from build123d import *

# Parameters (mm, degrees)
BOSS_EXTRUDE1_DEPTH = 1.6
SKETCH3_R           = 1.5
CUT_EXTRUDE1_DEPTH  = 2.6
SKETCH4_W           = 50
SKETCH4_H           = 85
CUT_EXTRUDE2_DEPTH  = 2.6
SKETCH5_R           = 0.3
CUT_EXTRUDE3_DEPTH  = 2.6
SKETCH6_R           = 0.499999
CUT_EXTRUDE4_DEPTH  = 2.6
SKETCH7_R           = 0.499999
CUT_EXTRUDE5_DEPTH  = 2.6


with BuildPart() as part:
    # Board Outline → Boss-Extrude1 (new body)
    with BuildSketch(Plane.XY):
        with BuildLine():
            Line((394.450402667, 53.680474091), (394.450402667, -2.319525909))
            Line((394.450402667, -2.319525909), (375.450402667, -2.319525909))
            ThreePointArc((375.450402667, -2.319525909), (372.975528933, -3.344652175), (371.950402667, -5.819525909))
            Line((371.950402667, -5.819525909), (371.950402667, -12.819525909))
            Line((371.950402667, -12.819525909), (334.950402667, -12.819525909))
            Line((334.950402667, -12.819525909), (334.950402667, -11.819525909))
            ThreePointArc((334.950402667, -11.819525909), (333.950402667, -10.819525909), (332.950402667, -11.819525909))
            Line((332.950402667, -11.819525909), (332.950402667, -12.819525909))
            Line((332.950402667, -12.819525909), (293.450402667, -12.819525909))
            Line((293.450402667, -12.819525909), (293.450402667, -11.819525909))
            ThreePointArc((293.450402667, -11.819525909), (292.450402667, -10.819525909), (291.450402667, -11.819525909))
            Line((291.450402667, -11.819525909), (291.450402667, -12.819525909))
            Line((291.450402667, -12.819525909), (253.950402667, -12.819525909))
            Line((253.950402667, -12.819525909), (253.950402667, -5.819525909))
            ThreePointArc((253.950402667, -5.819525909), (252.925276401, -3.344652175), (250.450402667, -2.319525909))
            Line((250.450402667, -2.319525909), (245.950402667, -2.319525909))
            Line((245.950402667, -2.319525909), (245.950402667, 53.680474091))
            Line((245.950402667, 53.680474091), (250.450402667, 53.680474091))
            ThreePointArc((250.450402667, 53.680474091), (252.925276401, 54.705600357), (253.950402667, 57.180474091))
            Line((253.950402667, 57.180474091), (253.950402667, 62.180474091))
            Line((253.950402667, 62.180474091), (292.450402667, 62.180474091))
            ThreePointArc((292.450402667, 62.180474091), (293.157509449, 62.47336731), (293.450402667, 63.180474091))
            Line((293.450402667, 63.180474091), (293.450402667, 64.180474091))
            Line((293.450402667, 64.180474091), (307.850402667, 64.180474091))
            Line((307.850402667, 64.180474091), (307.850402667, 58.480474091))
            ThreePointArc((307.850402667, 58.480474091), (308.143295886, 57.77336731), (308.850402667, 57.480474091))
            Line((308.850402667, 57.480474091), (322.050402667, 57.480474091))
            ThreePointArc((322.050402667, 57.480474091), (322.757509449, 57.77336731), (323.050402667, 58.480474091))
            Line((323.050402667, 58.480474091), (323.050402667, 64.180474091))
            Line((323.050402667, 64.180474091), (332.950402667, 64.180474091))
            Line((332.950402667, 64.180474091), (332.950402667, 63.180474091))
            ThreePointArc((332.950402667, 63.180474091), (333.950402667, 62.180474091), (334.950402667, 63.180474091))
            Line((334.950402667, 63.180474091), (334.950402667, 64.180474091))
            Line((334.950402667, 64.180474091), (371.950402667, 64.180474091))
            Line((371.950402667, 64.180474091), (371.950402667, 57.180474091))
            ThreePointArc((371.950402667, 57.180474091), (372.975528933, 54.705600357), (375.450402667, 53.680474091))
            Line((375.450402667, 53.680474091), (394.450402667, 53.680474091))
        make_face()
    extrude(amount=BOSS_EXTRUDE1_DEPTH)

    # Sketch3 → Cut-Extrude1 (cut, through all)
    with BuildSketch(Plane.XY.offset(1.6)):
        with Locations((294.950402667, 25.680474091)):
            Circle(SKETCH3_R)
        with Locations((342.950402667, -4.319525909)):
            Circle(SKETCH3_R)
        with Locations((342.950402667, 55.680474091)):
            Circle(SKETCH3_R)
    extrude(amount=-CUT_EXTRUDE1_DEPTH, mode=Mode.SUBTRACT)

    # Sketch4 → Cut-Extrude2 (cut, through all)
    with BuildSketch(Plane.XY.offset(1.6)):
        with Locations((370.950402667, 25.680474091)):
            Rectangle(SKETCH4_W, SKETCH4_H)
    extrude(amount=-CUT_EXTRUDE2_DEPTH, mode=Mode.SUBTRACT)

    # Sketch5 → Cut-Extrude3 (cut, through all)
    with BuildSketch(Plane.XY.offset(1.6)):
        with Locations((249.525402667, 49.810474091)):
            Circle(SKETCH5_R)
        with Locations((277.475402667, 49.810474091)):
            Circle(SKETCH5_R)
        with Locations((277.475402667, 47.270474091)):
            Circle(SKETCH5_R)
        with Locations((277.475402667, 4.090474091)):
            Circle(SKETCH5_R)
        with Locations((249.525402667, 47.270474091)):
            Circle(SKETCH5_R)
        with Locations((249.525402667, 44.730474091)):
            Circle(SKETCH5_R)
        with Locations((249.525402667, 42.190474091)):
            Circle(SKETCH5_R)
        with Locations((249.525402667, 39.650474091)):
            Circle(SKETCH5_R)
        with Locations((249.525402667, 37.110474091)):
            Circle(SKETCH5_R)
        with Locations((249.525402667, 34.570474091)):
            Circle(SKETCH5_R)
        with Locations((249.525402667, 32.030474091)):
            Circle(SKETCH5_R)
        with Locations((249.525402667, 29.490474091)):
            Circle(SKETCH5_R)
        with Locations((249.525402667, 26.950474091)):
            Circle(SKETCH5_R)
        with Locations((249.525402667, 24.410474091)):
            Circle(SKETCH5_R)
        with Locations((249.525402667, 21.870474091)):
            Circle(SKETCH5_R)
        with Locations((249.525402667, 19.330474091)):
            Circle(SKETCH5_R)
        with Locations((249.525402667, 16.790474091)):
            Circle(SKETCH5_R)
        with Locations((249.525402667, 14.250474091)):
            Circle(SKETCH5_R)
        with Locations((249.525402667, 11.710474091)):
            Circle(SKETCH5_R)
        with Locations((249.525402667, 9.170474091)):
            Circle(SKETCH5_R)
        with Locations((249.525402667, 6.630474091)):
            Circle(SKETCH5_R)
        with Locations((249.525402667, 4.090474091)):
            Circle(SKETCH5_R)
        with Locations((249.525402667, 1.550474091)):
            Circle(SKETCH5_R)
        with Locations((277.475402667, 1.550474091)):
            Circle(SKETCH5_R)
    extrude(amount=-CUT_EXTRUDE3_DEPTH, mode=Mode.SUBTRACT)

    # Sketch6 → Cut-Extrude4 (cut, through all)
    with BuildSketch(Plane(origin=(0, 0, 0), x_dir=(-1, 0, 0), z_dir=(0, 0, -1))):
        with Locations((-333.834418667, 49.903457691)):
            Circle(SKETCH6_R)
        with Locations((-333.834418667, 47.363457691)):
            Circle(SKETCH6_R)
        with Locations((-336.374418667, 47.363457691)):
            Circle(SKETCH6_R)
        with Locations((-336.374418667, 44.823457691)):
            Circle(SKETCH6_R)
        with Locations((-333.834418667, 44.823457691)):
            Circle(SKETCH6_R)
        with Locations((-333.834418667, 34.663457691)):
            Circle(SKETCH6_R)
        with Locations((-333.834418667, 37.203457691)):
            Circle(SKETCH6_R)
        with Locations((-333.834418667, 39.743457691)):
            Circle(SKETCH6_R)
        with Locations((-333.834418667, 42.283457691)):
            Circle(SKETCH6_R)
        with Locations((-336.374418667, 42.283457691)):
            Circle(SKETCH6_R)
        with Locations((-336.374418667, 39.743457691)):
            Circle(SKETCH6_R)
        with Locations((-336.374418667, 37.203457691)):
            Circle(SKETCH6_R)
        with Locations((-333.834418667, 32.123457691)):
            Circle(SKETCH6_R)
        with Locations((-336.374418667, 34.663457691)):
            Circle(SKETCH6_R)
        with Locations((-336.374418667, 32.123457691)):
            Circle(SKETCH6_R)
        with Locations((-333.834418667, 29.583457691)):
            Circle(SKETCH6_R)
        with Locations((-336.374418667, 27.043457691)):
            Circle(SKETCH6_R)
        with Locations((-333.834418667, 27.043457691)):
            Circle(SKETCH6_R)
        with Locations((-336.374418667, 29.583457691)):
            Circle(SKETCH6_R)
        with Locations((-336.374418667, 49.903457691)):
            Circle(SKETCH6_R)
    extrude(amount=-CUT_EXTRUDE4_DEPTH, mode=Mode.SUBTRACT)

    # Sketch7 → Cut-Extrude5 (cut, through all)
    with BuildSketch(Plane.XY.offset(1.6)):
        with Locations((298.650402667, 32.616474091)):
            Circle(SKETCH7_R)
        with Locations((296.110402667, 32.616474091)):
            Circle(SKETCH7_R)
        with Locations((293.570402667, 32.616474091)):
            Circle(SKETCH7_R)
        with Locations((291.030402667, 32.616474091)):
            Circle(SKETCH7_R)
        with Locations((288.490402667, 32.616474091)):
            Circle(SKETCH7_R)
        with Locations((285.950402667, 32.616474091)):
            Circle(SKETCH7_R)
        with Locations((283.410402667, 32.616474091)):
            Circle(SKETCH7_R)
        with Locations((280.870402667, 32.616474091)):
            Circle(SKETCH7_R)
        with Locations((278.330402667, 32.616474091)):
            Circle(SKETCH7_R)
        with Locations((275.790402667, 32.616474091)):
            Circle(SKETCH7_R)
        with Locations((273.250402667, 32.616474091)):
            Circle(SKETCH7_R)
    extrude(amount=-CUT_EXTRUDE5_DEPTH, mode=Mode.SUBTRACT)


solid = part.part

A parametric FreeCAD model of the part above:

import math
import FreeCAD as App
import Part
import Sketcher
from FreeCAD import Vector


def add_polygon(sketch, points):
    """Adds a closed chain of lines whose ends are joined by coincident constraints."""
    first, n = sketch.GeometryCount, len(points)
    for a, b in zip(points, points[1:] + points[:1]):
        sketch.addGeometry(Part.LineSegment(App.Vector(*a, 0), App.Vector(*b, 0)), False)
    for i in range(n):
        sketch.addConstraint(Sketcher.Constraint("Coincident", first + i, 2, first + (i + 1) % n, 1))

doc = App.newDocument("Part")
body = doc.addObject("PartDesign::Body", "Body")

sketch1 = body.newObject("Sketcher::SketchObject", "Sketch")
sketch1.AttachmentSupport = (doc.getObject("XY_Plane"), [""])
sketch1.MapMode = "FlatFace"
sketch1.addGeometry(Part.LineSegment(Vector(394.5, -2.3, 0), Vector(394.5, 53.7, 0)), False)
sketch1.addGeometry(Part.LineSegment(Vector(394.5, 53.7, 0), Vector(375.5, 53.7, 0)), False)
sketch1.addGeometry(Part.ArcOfCircle(Part.Circle(Vector(375.5, 57.2, 0), Vector(0, 0, 1), 3.5), math.radians(-180), math.radians(-90)), False)
sketch1.addGeometry(Part.LineSegment(Vector(372, 57.2, 0), Vector(372, 64.2, 0)), False)
sketch1.addGeometry(Part.LineSegment(Vector(372, 64.2, 0), Vector(335, 64.2, 0)), False)
sketch1.addGeometry(Part.LineSegment(Vector(335, 64.2, 0), Vector(335, 63.2, 0)), False)
sketch1.addGeometry(Part.ArcOfCircle(Part.Circle(Vector(334, 63.2, 0), Vector(0, 0, 1), 1), math.radians(180), math.radians(360)), False)
sketch1.addGeometry(Part.LineSegment(Vector(333, 63.2, 0), Vector(333, 64.2, 0)), False)
sketch1.addGeometry(Part.LineSegment(Vector(333, 64.2, 0), Vector(323.1, 64.2, 0)), False)
sketch1.addGeometry(Part.LineSegment(Vector(323.1, 64.2, 0), Vector(323.1, 58.5, 0)), False)
sketch1.addGeometry(Part.ArcOfCircle(Part.Circle(Vector(322.1, 58.5, 0), Vector(0, 0, 1), 1), math.radians(-90), math.radians(0)), False)
sketch1.addGeometry(Part.LineSegment(Vector(322.1, 57.5, 0), Vector(308.9, 57.5, 0)), False)
sketch1.addGeometry(Part.ArcOfCircle(Part.Circle(Vector(308.9, 58.5, 0), Vector(0, 0, 1), 1), math.radians(-180), math.radians(-90)), False)
sketch1.addGeometry(Part.LineSegment(Vector(307.9, 58.5, 0), Vector(307.9, 64.2, 0)), False)
sketch1.addGeometry(Part.LineSegment(Vector(307.9, 64.2, 0), Vector(293.5, 64.2, 0)), False)
sketch1.addGeometry(Part.LineSegment(Vector(293.5, 64.2, 0), Vector(293.5, 63.2, 0)), False)
sketch1.addGeometry(Part.ArcOfCircle(Part.Circle(Vector(292.5, 63.2, 0), Vector(0, 0, 1), 1), math.radians(-90), math.radians(0)), False)
sketch1.addGeometry(Part.LineSegment(Vector(292.5, 62.2, 0), Vector(254, 62.2, 0)), False)
sketch1.addGeometry(Part.LineSegment(Vector(254, 62.2, 0), Vector(254, 57.2, 0)), False)
sketch1.addGeometry(Part.ArcOfCircle(Part.Circle(Vector(250.5, 57.2, 0), Vector(0, 0, 1), 3.5), math.radians(-90), math.radians(0)), False)
sketch1.addGeometry(Part.LineSegment(Vector(250.5, 53.7, 0), Vector(246, 53.7, 0)), False)
sketch1.addGeometry(Part.LineSegment(Vector(246, 53.7, 0), Vector(246, -2.3, 0)), False)
sketch1.addGeometry(Part.LineSegment(Vector(246, -2.3, 0), Vector(250.5, -2.3, 0)), False)
sketch1.addGeometry(Part.ArcOfCircle(Part.Circle(Vector(250.5, -5.8, 0), Vector(0, 0, 1), 3.5), math.radians(0), math.radians(90)), False)
sketch1.addGeometry(Part.LineSegment(Vector(254, -5.8, 0), Vector(254, -12.8, 0)), False)
sketch1.addGeometry(Part.LineSegment(Vector(254, -12.8, 0), Vector(291.5, -12.8, 0)), False)
sketch1.addGeometry(Part.LineSegment(Vector(291.5, -12.8, 0), Vector(291.5, -11.8, 0)), False)
sketch1.addGeometry(Part.ArcOfCircle(Part.Circle(Vector(292.5, -11.8, 0), Vector(0, 0, 1), 1), math.radians(0), math.radians(180)), False)
sketch1.addGeometry(Part.LineSegment(Vector(293.5, -11.8, 0), Vector(293.5, -12.8, 0)), False)
sketch1.addGeometry(Part.LineSegment(Vector(293.5, -12.8, 0), Vector(333, -12.8, 0)), False)
sketch1.addGeometry(Part.LineSegment(Vector(333, -12.8, 0), Vector(333, -11.8, 0)), False)
sketch1.addGeometry(Part.ArcOfCircle(Part.Circle(Vector(334, -11.8, 0), Vector(0, 0, 1), 1), math.radians(0), math.radians(180)), False)
sketch1.addGeometry(Part.LineSegment(Vector(335, -11.8, 0), Vector(335, -12.8, 0)), False)
sketch1.addGeometry(Part.LineSegment(Vector(335, -12.8, 0), Vector(372, -12.8, 0)), False)
sketch1.addGeometry(Part.LineSegment(Vector(372, -12.8, 0), Vector(372, -5.8, 0)), False)
sketch1.addGeometry(Part.ArcOfCircle(Part.Circle(Vector(375.5, -5.8, 0), Vector(0, 0, 1), 3.5), math.radians(90), math.radians(180)), False)
sketch1.addGeometry(Part.LineSegment(Vector(375.5, -2.3, 0), Vector(394.5, -2.3, 0)), False)
sketch1.addConstraint(Sketcher.Constraint("Coincident", 0, 2, 1, 1))
sketch1.addConstraint(Sketcher.Constraint("Tangent", 1, 2, 2, 2))
sketch1.addConstraint(Sketcher.Constraint("Tangent", 2, 1, 3, 1))
sketch1.addConstraint(Sketcher.Constraint("Coincident", 3, 2, 4, 1))
sketch1.addConstraint(Sketcher.Constraint("Coincident", 4, 2, 5, 1))
sketch1.addConstraint(Sketcher.Constraint("Tangent", 5, 2, 6, 2))
sketch1.addConstraint(Sketcher.Constraint("Tangent", 6, 1, 7, 1))
sketch1.addConstraint(Sketcher.Constraint("Coincident", 7, 2, 8, 1))
sketch1.addConstraint(Sketcher.Constraint("Coincident", 8, 2, 9, 1))
sketch1.addConstraint(Sketcher.Constraint("Tangent", 9, 2, 10, 2))
sketch1.addConstraint(Sketcher.Constraint("Tangent", 10, 1, 11, 1))
sketch1.addConstraint(Sketcher.Constraint("Tangent", 11, 2, 12, 2))
sketch1.addConstraint(Sketcher.Constraint("Tangent", 12, 1, 13, 1))
sketch1.addConstraint(Sketcher.Constraint("Coincident", 13, 2, 14, 1))
sketch1.addConstraint(Sketcher.Constraint("Coincident", 14, 2, 15, 1))
sketch1.addConstraint(Sketcher.Constraint("Tangent", 15, 2, 16, 2))
sketch1.addConstraint(Sketcher.Constraint("Tangent", 16, 1, 17, 1))
sketch1.addConstraint(Sketcher.Constraint("Coincident", 17, 2, 18, 1))
sketch1.addConstraint(Sketcher.Constraint("Tangent", 18, 2, 19, 2))
sketch1.addConstraint(Sketcher.Constraint("Tangent", 19, 1, 20, 1))
sketch1.addConstraint(Sketcher.Constraint("Coincident", 20, 2, 21, 1))
sketch1.addConstraint(Sketcher.Constraint("Coincident", 21, 2, 22, 1))
sketch1.addConstraint(Sketcher.Constraint("Tangent", 22, 2, 23, 2))
sketch1.addConstraint(Sketcher.Constraint("Tangent", 23, 1, 24, 1))
sketch1.addConstraint(Sketcher.Constraint("Coincident", 24, 2, 25, 1))
sketch1.addConstraint(Sketcher.Constraint("Coincident", 25, 2, 26, 1))
sketch1.addConstraint(Sketcher.Constraint("Tangent", 26, 2, 27, 2))
sketch1.addConstraint(Sketcher.Constraint("Tangent", 27, 1, 28, 1))
sketch1.addConstraint(Sketcher.Constraint("Coincident", 28, 2, 29, 1))
sketch1.addConstraint(Sketcher.Constraint("Coincident", 29, 2, 30, 1))
sketch1.addConstraint(Sketcher.Constraint("Tangent", 30, 2, 31, 2))
sketch1.addConstraint(Sketcher.Constraint("Tangent", 31, 1, 32, 1))
sketch1.addConstraint(Sketcher.Constraint("Coincident", 32, 2, 33, 1))
sketch1.addConstraint(Sketcher.Constraint("Coincident", 33, 2, 34, 1))
sketch1.addConstraint(Sketcher.Constraint("Tangent", 34, 2, 35, 2))
sketch1.addConstraint(Sketcher.Constraint("Tangent", 35, 1, 36, 1))
sketch1.addConstraint(Sketcher.Constraint("Coincident", 36, 2, 0, 1))
sketch1.addConstraint(Sketcher.Constraint("Vertical", 0))
sketch1.addConstraint(Sketcher.Constraint("Horizontal", 1))
sketch1.addConstraint(Sketcher.Constraint("Vertical", 3))
sketch1.addConstraint(Sketcher.Constraint("Horizontal", 4))
sketch1.addConstraint(Sketcher.Constraint("Vertical", 5))
sketch1.addConstraint(Sketcher.Constraint("Vertical", 7))
sketch1.addConstraint(Sketcher.Constraint("Horizontal", 8))
sketch1.addConstraint(Sketcher.Constraint("Vertical", 9))
sketch1.addConstraint(Sketcher.Constraint("Horizontal", 11))
sketch1.addConstraint(Sketcher.Constraint("Vertical", 13))
sketch1.addConstraint(Sketcher.Constraint("Horizontal", 14))
sketch1.addConstraint(Sketcher.Constraint("Vertical", 15))
sketch1.addConstraint(Sketcher.Constraint("Horizontal", 17))
sketch1.addConstraint(Sketcher.Constraint("Vertical", 18))
sketch1.addConstraint(Sketcher.Constraint("Horizontal", 20))
sketch1.addConstraint(Sketcher.Constraint("Vertical", 21))
sketch1.addConstraint(Sketcher.Constraint("Horizontal", 22))
sketch1.addConstraint(Sketcher.Constraint("Vertical", 24))
sketch1.addConstraint(Sketcher.Constraint("Horizontal", 25))
sketch1.addConstraint(Sketcher.Constraint("Vertical", 26))
sketch1.addConstraint(Sketcher.Constraint("Vertical", 28))
sketch1.addConstraint(Sketcher.Constraint("Horizontal", 29))
sketch1.addConstraint(Sketcher.Constraint("Vertical", 30))
sketch1.addConstraint(Sketcher.Constraint("Vertical", 32))
sketch1.addConstraint(Sketcher.Constraint("Horizontal", 33))
sketch1.addConstraint(Sketcher.Constraint("Vertical", 34))
sketch1.addConstraint(Sketcher.Constraint("Horizontal", 36))
sketch1.addConstraint(Sketcher.Constraint("Equal", 6, 10))
sketch1.addConstraint(Sketcher.Constraint("Equal", 10, 12))
sketch1.addConstraint(Sketcher.Constraint("Equal", 12, 16))
sketch1.addConstraint(Sketcher.Constraint("Equal", 2, 19))
sketch1.addConstraint(Sketcher.Constraint("Equal", 19, 23))
sketch1.addConstraint(Sketcher.Constraint("Equal", 16, 27))
sketch1.addConstraint(Sketcher.Constraint("Equal", 27, 31))
sketch1.addConstraint(Sketcher.Constraint("Equal", 23, 35))
sketch1.addConstraint(Sketcher.Constraint("Horizontal", 6, 3, 16, 3))
sketch1.addConstraint(Sketcher.Constraint("Horizontal", 2, 3, 19, 3))
sketch1.addConstraint(Sketcher.Constraint("Horizontal", 27, 3, 31, 3))
sketch1.addConstraint(Sketcher.Constraint("Horizontal", 23, 3, 35, 3))
sketch1.addConstraint(Sketcher.Constraint("Horizontal", 4, 2, 7, 2))
sketch1.addConstraint(Sketcher.Constraint("Horizontal", 8, 2, 13, 2))
sketch1.addConstraint(Sketcher.Constraint("Horizontal", 25, 2, 28, 2))
sketch1.addConstraint(Sketcher.Constraint("Horizontal", 29, 2, 32, 2))
sketch1.addConstraint(Sketcher.Constraint("Vertical", 19, 3, 23, 3))
sketch1.addConstraint(Sketcher.Constraint("Vertical", 16, 3, 27, 3))
sketch1.addConstraint(Sketcher.Constraint("Vertical", 6, 3, 31, 3))
sketch1.addConstraint(Sketcher.Constraint("Vertical", 2, 3, 35, 3))
sketch1.addConstraint(Sketcher.Constraint("Equal", 3, 24))
sketch1.addConstraint(Sketcher.Constraint("Equal", 15, 26))
sketch1.addConstraint(Sketcher.Constraint("Radius", 6, 1.0))
sketch1.addConstraint(Sketcher.Constraint("Radius", 2, 3.5))
sketch1.addConstraint(Sketcher.Constraint("DistanceX", 1, 2, 1, 1, 19.0))
sketch1.addConstraint(Sketcher.Constraint("DistanceX", 4, 2, 4, 1, 37.0))
sketch1.addConstraint(Sketcher.Constraint("DistanceY", 0, 1, 0, 2, 56.0))
sketch1.addConstraint(Sketcher.Constraint("DistanceY", 3, 1, 3, 2, 7.0))
sketch1.addConstraint(Sketcher.Constraint("DistanceY", 5, 2, 5, 1, 1.0))
sketch1.addConstraint(Sketcher.Constraint("DistanceX", 8, 2, 8, 1, 9.9))
sketch1.addConstraint(Sketcher.Constraint("DistanceX", 11, 2, 11, 1, 13.2))
sketch1.addConstraint(Sketcher.Constraint("DistanceX", 14, 2, 14, 1, 14.4))
sketch1.addConstraint(Sketcher.Constraint("DistanceX", 17, 2, 17, 1, 38.5))
sketch1.addConstraint(Sketcher.Constraint("DistanceX", 20, 2, 20, 1, 4.5))
sketch1.addConstraint(Sketcher.Constraint("DistanceY", 9, 2, 9, 1, 5.7))
sketch1.addConstraint(Sketcher.Constraint("DistanceX", -1, 1, 2, 3, 375.450403))
sketch1.addConstraint(Sketcher.Constraint("DistanceY", -1, 1, 2, 3, 57.180474))
pad1 = body.newObject("PartDesign::Pad", "Pad")
pad1.Profile = sketch1
pad1.Length = 1.6

sketch2 = body.newObject("Sketcher::SketchObject", "Sketch001")
sketch2.AttachmentSupport = (doc.getObject("XY_Plane"), [""])
sketch2.MapMode = "FlatFace"
sketch2.AttachmentOffset = App.Placement(Vector(0, 0, 1.6), App.Rotation())
sketch2.addGeometry(Part.Circle(Vector(295, 25.7, 0), Vector(0, 0, 1), 1.5), False)
sketch2.addGeometry(Part.Circle(Vector(343, -4.3, 0), Vector(0, 0, 1), 1.5), False)
sketch2.addGeometry(Part.Circle(Vector(343, 55.7, 0), Vector(0, 0, 1), 1.5), False)
sketch2.addConstraint(Sketcher.Constraint("Equal", 0, 1))
sketch2.addConstraint(Sketcher.Constraint("Equal", 1, 2))
sketch2.addConstraint(Sketcher.Constraint("Vertical", 1, 3, 2, 3))
sketch2.addConstraint(Sketcher.Constraint("Diameter", 0, 3.0))
sketch2.addConstraint(Sketcher.Constraint("DistanceX", 0, 3, 1, 3, 48.0))
sketch2.addConstraint(Sketcher.Constraint("DistanceY", 1, 3, 0, 3, 30.0))
sketch2.addConstraint(Sketcher.Constraint("DistanceY", 0, 3, 2, 3, 30.0))
sketch2.addConstraint(Sketcher.Constraint("DistanceX", -1, 1, 0, 3, 294.950403))
sketch2.addConstraint(Sketcher.Constraint("DistanceY", -1, 1, 0, 3, 25.680474))
pocket1 = body.newObject("PartDesign::Pocket", "Pocket")
pocket1.Profile = sketch2
pocket1.Type = "ThroughAll"

sketch3 = body.newObject("Sketcher::SketchObject", "Sketch002")
sketch3.AttachmentSupport = (doc.getObject("XY_Plane"), [""])
sketch3.MapMode = "FlatFace"
sketch3.AttachmentOffset = App.Placement(Vector(0, 0, 1.6), App.Rotation())
add_polygon(sketch3, [(346, 68), (346, -17), (396, -17), (396, 68)])
sketch3.addConstraint(Sketcher.Constraint("Vertical", 0))
sketch3.addConstraint(Sketcher.Constraint("Horizontal", 1))
sketch3.addConstraint(Sketcher.Constraint("Vertical", 2))
sketch3.addConstraint(Sketcher.Constraint("Horizontal", 3))
sketch3.addConstraint(Sketcher.Constraint("DistanceX", 1, 1, 1, 2, 50.0))
sketch3.addConstraint(Sketcher.Constraint("DistanceY", 0, 2, 0, 1, 85.0))
sketch3.addConstraint(Sketcher.Constraint("DistanceX", -1, 1, 0, 2, 345.950403))
sketch3.addConstraint(Sketcher.Constraint("DistanceY", 0, 2, -1, 1, 16.819526))
pocket2 = body.newObject("PartDesign::Pocket", "Pocket001")
pocket2.Profile = sketch3
pocket2.Type = "ThroughAll"

sketch4 = body.newObject("Sketcher::SketchObject", "Sketch003")
sketch4.AttachmentSupport = (doc.getObject("XY_Plane"), [""])
sketch4.MapMode = "FlatFace"
sketch4.AttachmentOffset = App.Placement(Vector(0, 0, 1.6), App.Rotation())
sketch4.addGeometry(Part.Circle(Vector(249.53, 49.81, 0), Vector(0, 0, 1), 0.3), False)
sketch4.addGeometry(Part.Circle(Vector(277.48, 49.81, 0), Vector(0, 0, 1), 0.3), False)
sketch4.addGeometry(Part.Circle(Vector(277.48, 47.27, 0), Vector(0, 0, 1), 0.3), False)
sketch4.addGeometry(Part.Circle(Vector(277.48, 4.09, 0), Vector(0, 0, 1), 0.3), False)
sketch4.addGeometry(Part.Circle(Vector(249.53, 47.27, 0), Vector(0, 0, 1), 0.3), False)
sketch4.addGeometry(Part.Circle(Vector(249.53, 44.73, 0), Vector(0, 0, 1), 0.3), False)
sketch4.addGeometry(Part.Circle(Vector(249.53, 42.19, 0), Vector(0, 0, 1), 0.3), False)
sketch4.addGeometry(Part.Circle(Vector(249.53, 39.65, 0), Vector(0, 0, 1), 0.3), False)
sketch4.addGeometry(Part.Circle(Vector(249.53, 37.11, 0), Vector(0, 0, 1), 0.3), False)
sketch4.addGeometry(Part.Circle(Vector(249.53, 34.57, 0), Vector(0, 0, 1), 0.3), False)
sketch4.addGeometry(Part.Circle(Vector(249.53, 32.03, 0), Vector(0, 0, 1), 0.3), False)
sketch4.addGeometry(Part.Circle(Vector(249.53, 29.49, 0), Vector(0, 0, 1), 0.3), False)
sketch4.addGeometry(Part.Circle(Vector(249.53, 26.95, 0), Vector(0, 0, 1), 0.3), False)
sketch4.addGeometry(Part.Circle(Vector(249.53, 24.41, 0), Vector(0, 0, 1), 0.3), False)
sketch4.addGeometry(Part.Circle(Vector(249.53, 21.87, 0), Vector(0, 0, 1), 0.3), False)
sketch4.addGeometry(Part.Circle(Vector(249.53, 19.33, 0), Vector(0, 0, 1), 0.3), False)
sketch4.addGeometry(Part.Circle(Vector(249.53, 16.79, 0), Vector(0, 0, 1), 0.3), False)
sketch4.addGeometry(Part.Circle(Vector(249.53, 14.25, 0), Vector(0, 0, 1), 0.3), False)
sketch4.addGeometry(Part.Circle(Vector(249.53, 11.71, 0), Vector(0, 0, 1), 0.3), False)
sketch4.addGeometry(Part.Circle(Vector(249.53, 9.17, 0), Vector(0, 0, 1), 0.3), False)
sketch4.addGeometry(Part.Circle(Vector(249.53, 6.63, 0), Vector(0, 0, 1), 0.3), False)
sketch4.addGeometry(Part.Circle(Vector(249.53, 4.09, 0), Vector(0, 0, 1), 0.3), False)
sketch4.addGeometry(Part.Circle(Vector(249.53, 1.55, 0), Vector(0, 0, 1), 0.3), False)
sketch4.addGeometry(Part.Circle(Vector(277.48, 1.55, 0), Vector(0, 0, 1), 0.3), False)
sketch4.addConstraint(Sketcher.Constraint("Equal", 0, 1))
sketch4.addConstraint(Sketcher.Constraint("Equal", 1, 2))
sketch4.addConstraint(Sketcher.Constraint("Equal", 2, 3))
sketch4.addConstraint(Sketcher.Constraint("Equal", 3, 4))
sketch4.addConstraint(Sketcher.Constraint("Equal", 4, 5))
sketch4.addConstraint(Sketcher.Constraint("Equal", 5, 6))
sketch4.addConstraint(Sketcher.Constraint("Equal", 6, 7))
sketch4.addConstraint(Sketcher.Constraint("Equal", 7, 8))
sketch4.addConstraint(Sketcher.Constraint("Equal", 8, 9))
sketch4.addConstraint(Sketcher.Constraint("Equal", 9, 10))
sketch4.addConstraint(Sketcher.Constraint("Equal", 10, 11))
sketch4.addConstraint(Sketcher.Constraint("Equal", 11, 12))
sketch4.addConstraint(Sketcher.Constraint("Equal", 12, 13))
sketch4.addConstraint(Sketcher.Constraint("Equal", 13, 14))
sketch4.addConstraint(Sketcher.Constraint("Equal", 14, 15))
sketch4.addConstraint(Sketcher.Constraint("Equal", 15, 16))
sketch4.addConstraint(Sketcher.Constraint("Equal", 16, 17))
sketch4.addConstraint(Sketcher.Constraint("Equal", 17, 18))
sketch4.addConstraint(Sketcher.Constraint("Equal", 18, 19))
sketch4.addConstraint(Sketcher.Constraint("Equal", 19, 20))
sketch4.addConstraint(Sketcher.Constraint("Equal", 20, 21))
sketch4.addConstraint(Sketcher.Constraint("Equal", 21, 22))
sketch4.addConstraint(Sketcher.Constraint("Equal", 22, 23))
sketch4.addConstraint(Sketcher.Constraint("Horizontal", 0, 3, 1, 3))
sketch4.addConstraint(Sketcher.Constraint("Horizontal", 2, 3, 4, 3))
sketch4.addConstraint(Sketcher.Constraint("Horizontal", 3, 3, 21, 3))
sketch4.addConstraint(Sketcher.Constraint("Horizontal", 22, 3, 23, 3))
sketch4.addConstraint(Sketcher.Constraint("Vertical", 1, 3, 2, 3))
sketch4.addConstraint(Sketcher.Constraint("Vertical", 2, 3, 3, 3))
sketch4.addConstraint(Sketcher.Constraint("Vertical", 0, 3, 4, 3))
sketch4.addConstraint(Sketcher.Constraint("Vertical", 4, 3, 5, 3))
sketch4.addConstraint(Sketcher.Constraint("Vertical", 5, 3, 6, 3))
sketch4.addConstraint(Sketcher.Constraint("Vertical", 6, 3, 7, 3))
sketch4.addConstraint(Sketcher.Constraint("Vertical", 7, 3, 8, 3))
sketch4.addConstraint(Sketcher.Constraint("Vertical", 8, 3, 9, 3))
sketch4.addConstraint(Sketcher.Constraint("Vertical", 9, 3, 10, 3))
sketch4.addConstraint(Sketcher.Constraint("Vertical", 10, 3, 11, 3))
sketch4.addConstraint(Sketcher.Constraint("Vertical", 11, 3, 12, 3))
sketch4.addConstraint(Sketcher.Constraint("Vertical", 12, 3, 13, 3))
sketch4.addConstraint(Sketcher.Constraint("Vertical", 13, 3, 14, 3))
sketch4.addConstraint(Sketcher.Constraint("Vertical", 14, 3, 15, 3))
sketch4.addConstraint(Sketcher.Constraint("Vertical", 15, 3, 16, 3))
sketch4.addConstraint(Sketcher.Constraint("Vertical", 16, 3, 17, 3))
sketch4.addConstraint(Sketcher.Constraint("Vertical", 17, 3, 18, 3))
sketch4.addConstraint(Sketcher.Constraint("Vertical", 18, 3, 19, 3))
sketch4.addConstraint(Sketcher.Constraint("Vertical", 19, 3, 20, 3))
sketch4.addConstraint(Sketcher.Constraint("Vertical", 20, 3, 21, 3))
sketch4.addConstraint(Sketcher.Constraint("Vertical", 21, 3, 22, 3))
sketch4.addConstraint(Sketcher.Constraint("Vertical", 3, 3, 23, 3))
sketch4.addConstraint(Sketcher.Constraint("Diameter", 0, 0.6))
sketch4.addConstraint(Sketcher.Constraint("DistanceY", 8, 3, 0, 3, 12.7))
sketch4.addConstraint(Sketcher.Constraint("DistanceY", 9, 3, 4, 3, 12.7))
sketch4.addConstraint(Sketcher.Constraint("DistanceY", 10, 3, 5, 3, 12.7))
sketch4.addConstraint(Sketcher.Constraint("DistanceY", 11, 3, 6, 3, 12.7))
sketch4.addConstraint(Sketcher.Constraint("DistanceY", 12, 3, 7, 3, 12.7))
sketch4.addConstraint(Sketcher.Constraint("DistanceY", 13, 3, 8, 3, 12.7))
sketch4.addConstraint(Sketcher.Constraint("DistanceY", 14, 3, 9, 3, 12.7))
sketch4.addConstraint(Sketcher.Constraint("DistanceY", 15, 3, 10, 3, 12.7))
sketch4.addConstraint(Sketcher.Constraint("DistanceY", 16, 3, 11, 3, 12.7))
sketch4.addConstraint(Sketcher.Constraint("DistanceY", 17, 3, 12, 3, 12.7))
sketch4.addConstraint(Sketcher.Constraint("DistanceY", 18, 3, 13, 3, 12.7))
sketch4.addConstraint(Sketcher.Constraint("DistanceY", 19, 3, 14, 3, 12.7))
sketch4.addConstraint(Sketcher.Constraint("DistanceY", 20, 3, 15, 3, 12.7))
sketch4.addConstraint(Sketcher.Constraint("DistanceY", 21, 3, 16, 3, 12.7))
sketch4.addConstraint(Sketcher.Constraint("DistanceY", 22, 3, 17, 3, 12.7))
sketch4.addConstraint(Sketcher.Constraint("DistanceX", 0, 3, 1, 3, 27.95))
sketch4.addConstraint(Sketcher.Constraint("DistanceY", 2, 3, 1, 3, 2.54))
sketch4.addConstraint(Sketcher.Constraint("DistanceY", 3, 3, 2, 3, 43.18))
sketch4.addConstraint(Sketcher.Constraint("DistanceY", 5, 3, 4, 3, 2.54))
sketch4.addConstraint(Sketcher.Constraint("DistanceY", 7, 3, 6, 3, 2.54))
sketch4.addConstraint(Sketcher.Constraint("DistanceX", -1, 1, 0, 3, 249.525403))
sketch4.addConstraint(Sketcher.Constraint("DistanceY", -1, 1, 0, 3, 49.810474))
pocket3 = body.newObject("PartDesign::Pocket", "Pocket002")
pocket3.Profile = sketch4
pocket3.Type = "ThroughAll"

sketch5 = body.newObject("Sketcher::SketchObject", "Sketch004")
sketch5.AttachmentSupport = (doc.getObject("XY_Plane"), [""])
sketch5.MapMode = "FlatFace"
sketch5.addGeometry(Part.Circle(Vector(333.83, 49.9, 0), Vector(0, 0, 1), 0.5), False)
sketch5.addGeometry(Part.Circle(Vector(333.83, 47.36, 0), Vector(0, 0, 1), 0.5), False)
sketch5.addGeometry(Part.Circle(Vector(336.37, 47.36, 0), Vector(0, 0, 1), 0.5), False)
sketch5.addGeometry(Part.Circle(Vector(336.37, 44.82, 0), Vector(0, 0, 1), 0.5), False)
sketch5.addGeometry(Part.Circle(Vector(333.83, 44.82, 0), Vector(0, 0, 1), 0.5), False)
sketch5.addGeometry(Part.Circle(Vector(333.83, 34.66, 0), Vector(0, 0, 1), 0.5), False)
sketch5.addGeometry(Part.Circle(Vector(333.83, 37.2, 0), Vector(0, 0, 1), 0.5), False)
sketch5.addGeometry(Part.Circle(Vector(333.83, 39.74, 0), Vector(0, 0, 1), 0.5), False)
sketch5.addGeometry(Part.Circle(Vector(333.83, 42.28, 0), Vector(0, 0, 1), 0.5), False)
sketch5.addGeometry(Part.Circle(Vector(336.37, 42.28, 0), Vector(0, 0, 1), 0.5), False)
sketch5.addGeometry(Part.Circle(Vector(336.37, 39.74, 0), Vector(0, 0, 1), 0.5), False)
sketch5.addGeometry(Part.Circle(Vector(336.37, 37.2, 0), Vector(0, 0, 1), 0.5), False)
sketch5.addGeometry(Part.Circle(Vector(333.83, 32.12, 0), Vector(0, 0, 1), 0.5), False)
sketch5.addGeometry(Part.Circle(Vector(336.37, 34.66, 0), Vector(0, 0, 1), 0.5), False)
sketch5.addGeometry(Part.Circle(Vector(336.37, 32.12, 0), Vector(0, 0, 1), 0.5), False)
sketch5.addGeometry(Part.Circle(Vector(333.83, 29.58, 0), Vector(0, 0, 1), 0.5), False)
sketch5.addGeometry(Part.Circle(Vector(336.37, 27.04, 0), Vector(0, 0, 1), 0.5), False)
sketch5.addGeometry(Part.Circle(Vector(333.83, 27.04, 0), Vector(0, 0, 1), 0.5), False)
sketch5.addGeometry(Part.Circle(Vector(336.37, 29.58, 0), Vector(0, 0, 1), 0.5), False)
sketch5.addGeometry(Part.Circle(Vector(336.37, 49.9, 0), Vector(0, 0, 1), 0.5), False)
sketch5.addConstraint(Sketcher.Constraint("Equal", 0, 1))
sketch5.addConstraint(Sketcher.Constraint("Equal", 1, 2))
sketch5.addConstraint(Sketcher.Constraint("Equal", 2, 3))
sketch5.addConstraint(Sketcher.Constraint("Equal", 3, 4))
sketch5.addConstraint(Sketcher.Constraint("Equal", 4, 5))
sketch5.addConstraint(Sketcher.Constraint("Equal", 5, 6))
sketch5.addConstraint(Sketcher.Constraint("Equal", 6, 7))
sketch5.addConstraint(Sketcher.Constraint("Equal", 7, 8))
sketch5.addConstraint(Sketcher.Constraint("Equal", 8, 9))
sketch5.addConstraint(Sketcher.Constraint("Equal", 9, 10))
sketch5.addConstraint(Sketcher.Constraint("Equal", 10, 11))
sketch5.addConstraint(Sketcher.Constraint("Equal", 11, 12))
sketch5.addConstraint(Sketcher.Constraint("Equal", 12, 13))
sketch5.addConstraint(Sketcher.Constraint("Equal", 13, 14))
sketch5.addConstraint(Sketcher.Constraint("Equal", 14, 15))
sketch5.addConstraint(Sketcher.Constraint("Equal", 15, 16))
sketch5.addConstraint(Sketcher.Constraint("Equal", 16, 17))
sketch5.addConstraint(Sketcher.Constraint("Equal", 17, 18))
sketch5.addConstraint(Sketcher.Constraint("Equal", 18, 19))
sketch5.addConstraint(Sketcher.Constraint("Horizontal", 1, 3, 2, 3))
sketch5.addConstraint(Sketcher.Constraint("Horizontal", 3, 3, 4, 3))
sketch5.addConstraint(Sketcher.Constraint("Horizontal", 8, 3, 9, 3))
sketch5.addConstraint(Sketcher.Constraint("Horizontal", 7, 3, 10, 3))
sketch5.addConstraint(Sketcher.Constraint("Horizontal", 6, 3, 11, 3))
sketch5.addConstraint(Sketcher.Constraint("Horizontal", 5, 3, 13, 3))
sketch5.addConstraint(Sketcher.Constraint("Horizontal", 12, 3, 14, 3))
sketch5.addConstraint(Sketcher.Constraint("Horizontal", 16, 3, 17, 3))
sketch5.addConstraint(Sketcher.Constraint("Horizontal", 15, 3, 18, 3))
sketch5.addConstraint(Sketcher.Constraint("Horizontal", 0, 3, 19, 3))
sketch5.addConstraint(Sketcher.Constraint("Vertical", 0, 3, 1, 3))
sketch5.addConstraint(Sketcher.Constraint("Vertical", 2, 3, 3, 3))
sketch5.addConstraint(Sketcher.Constraint("Vertical", 1, 3, 4, 3))
sketch5.addConstraint(Sketcher.Constraint("Vertical", 4, 3, 5, 3))
sketch5.addConstraint(Sketcher.Constraint("Vertical", 5, 3, 6, 3))
sketch5.addConstraint(Sketcher.Constraint("Vertical", 6, 3, 7, 3))
sketch5.addConstraint(Sketcher.Constraint("Vertical", 7, 3, 8, 3))
sketch5.addConstraint(Sketcher.Constraint("Vertical", 3, 3, 9, 3))
sketch5.addConstraint(Sketcher.Constraint("Vertical", 9, 3, 10, 3))
sketch5.addConstraint(Sketcher.Constraint("Vertical", 10, 3, 11, 3))
sketch5.addConstraint(Sketcher.Constraint("Vertical", 8, 3, 12, 3))
sketch5.addConstraint(Sketcher.Constraint("Vertical", 11, 3, 13, 3))
sketch5.addConstraint(Sketcher.Constraint("Vertical", 13, 3, 14, 3))
sketch5.addConstraint(Sketcher.Constraint("Vertical", 12, 3, 15, 3))
sketch5.addConstraint(Sketcher.Constraint("Vertical", 14, 3, 16, 3))
sketch5.addConstraint(Sketcher.Constraint("Vertical", 15, 3, 17, 3))
sketch5.addConstraint(Sketcher.Constraint("Vertical", 16, 3, 18, 3))
sketch5.addConstraint(Sketcher.Constraint("Vertical", 18, 3, 19, 3))
sketch5.addConstraint(Sketcher.Constraint("Diameter", 0, 0.999998))
sketch5.addConstraint(Sketcher.Constraint("DistanceY", 5, 3, 1, 3, 12.7))
sketch5.addConstraint(Sketcher.Constraint("DistanceY", 1, 3, 0, 3, 2.54))
sketch5.addConstraint(Sketcher.Constraint("DistanceX", 1, 3, 2, 3, 2.54))
sketch5.addConstraint(Sketcher.Constraint("DistanceY", 3, 3, 2, 3, 2.54))
sketch5.addConstraint(Sketcher.Constraint("DistanceY", 5, 3, 6, 3, 2.54))
sketch5.addConstraint(Sketcher.Constraint("DistanceY", 6, 3, 7, 3, 2.54))
sketch5.addConstraint(Sketcher.Constraint("DistanceY", 8, 3, 4, 3, 2.54))
sketch5.addConstraint(Sketcher.Constraint("DistanceY", 12, 3, 5, 3, 2.54))
sketch5.addConstraint(Sketcher.Constraint("DistanceY", 15, 3, 12, 3, 2.54))
sketch5.addConstraint(Sketcher.Constraint("DistanceY", 16, 3, 15, 3, 2.54))
sketch5.addConstraint(Sketcher.Constraint("DistanceX", -1, 1, 0, 3, 333.834419))
sketch5.addConstraint(Sketcher.Constraint("DistanceY", -1, 1, 0, 3, 49.903458))
pocket4 = body.newObject("PartDesign::Pocket", "Pocket003")
pocket4.Profile = sketch5
pocket4.Type = "ThroughAll"
pocket4.Reversed = True

sketch6 = body.newObject("Sketcher::SketchObject", "Sketch005")
sketch6.AttachmentSupport = (doc.getObject("XY_Plane"), [""])
sketch6.MapMode = "FlatFace"
sketch6.AttachmentOffset = App.Placement(Vector(0, 0, 1.6), App.Rotation())
sketch6.addGeometry(Part.Circle(Vector(298.65, 32.62, 0), Vector(0, 0, 1), 0.5), False)
sketch6.addGeometry(Part.Circle(Vector(296.11, 32.62, 0), Vector(0, 0, 1), 0.5), False)
sketch6.addGeometry(Part.Circle(Vector(293.57, 32.62, 0), Vector(0, 0, 1), 0.5), False)
sketch6.addGeometry(Part.Circle(Vector(291.03, 32.62, 0), Vector(0, 0, 1), 0.5), False)
sketch6.addGeometry(Part.Circle(Vector(288.49, 32.62, 0), Vector(0, 0, 1), 0.5), False)
sketch6.addGeometry(Part.Circle(Vector(285.95, 32.62, 0), Vector(0, 0, 1), 0.5), False)
sketch6.addGeometry(Part.Circle(Vector(283.41, 32.62, 0), Vector(0, 0, 1), 0.5), False)
sketch6.addGeometry(Part.Circle(Vector(280.87, 32.62, 0), Vector(0, 0, 1), 0.5), False)
sketch6.addGeometry(Part.Circle(Vector(278.33, 32.62, 0), Vector(0, 0, 1), 0.5), False)
sketch6.addGeometry(Part.Circle(Vector(275.79, 32.62, 0), Vector(0, 0, 1), 0.5), False)
sketch6.addGeometry(Part.Circle(Vector(273.25, 32.62, 0), Vector(0, 0, 1), 0.5), False)
sketch6.addConstraint(Sketcher.Constraint("Equal", 0, 1))
sketch6.addConstraint(Sketcher.Constraint("Equal", 1, 2))
sketch6.addConstraint(Sketcher.Constraint("Equal", 2, 3))
sketch6.addConstraint(Sketcher.Constraint("Equal", 3, 4))
sketch6.addConstraint(Sketcher.Constraint("Equal", 4, 5))
sketch6.addConstraint(Sketcher.Constraint("Equal", 5, 6))
sketch6.addConstraint(Sketcher.Constraint("Equal", 6, 7))
sketch6.addConstraint(Sketcher.Constraint("Equal", 7, 8))
sketch6.addConstraint(Sketcher.Constraint("Equal", 8, 9))
sketch6.addConstraint(Sketcher.Constraint("Equal", 9, 10))
sketch6.addConstraint(Sketcher.Constraint("Horizontal", 0, 3, 1, 3))
sketch6.addConstraint(Sketcher.Constraint("Horizontal", 1, 3, 2, 3))
sketch6.addConstraint(Sketcher.Constraint("Horizontal", 2, 3, 3, 3))
sketch6.addConstraint(Sketcher.Constraint("Horizontal", 3, 3, 4, 3))
sketch6.addConstraint(Sketcher.Constraint("Horizontal", 4, 3, 5, 3))
sketch6.addConstraint(Sketcher.Constraint("Horizontal", 5, 3, 6, 3))
sketch6.addConstraint(Sketcher.Constraint("Horizontal", 6, 3, 7, 3))
sketch6.addConstraint(Sketcher.Constraint("Horizontal", 7, 3, 8, 3))
sketch6.addConstraint(Sketcher.Constraint("Horizontal", 8, 3, 9, 3))
sketch6.addConstraint(Sketcher.Constraint("Horizontal", 9, 3, 10, 3))
sketch6.addConstraint(Sketcher.Constraint("Diameter", 0, 0.999998))
sketch6.addConstraint(Sketcher.Constraint("DistanceX", 5, 3, 0, 3, 12.7))
sketch6.addConstraint(Sketcher.Constraint("DistanceX", 6, 3, 1, 3, 12.7))
sketch6.addConstraint(Sketcher.Constraint("DistanceX", 7, 3, 2, 3, 12.7))
sketch6.addConstraint(Sketcher.Constraint("DistanceX", 8, 3, 3, 3, 12.7))
sketch6.addConstraint(Sketcher.Constraint("DistanceX", 9, 3, 4, 3, 12.7))
sketch6.addConstraint(Sketcher.Constraint("DistanceX", 10, 3, 5, 3, 12.7))
sketch6.addConstraint(Sketcher.Constraint("DistanceX", 1, 3, 0, 3, 2.54))
sketch6.addConstraint(Sketcher.Constraint("DistanceX", 2, 3, 1, 3, 2.54))
sketch6.addConstraint(Sketcher.Constraint("DistanceX", 3, 3, 2, 3, 2.54))
sketch6.addConstraint(Sketcher.Constraint("DistanceX", 4, 3, 3, 3, 2.54))
sketch6.addConstraint(Sketcher.Constraint("DistanceX", -1, 1, 0, 3, 298.650403))
sketch6.addConstraint(Sketcher.Constraint("DistanceY", -1, 1, 0, 3, 32.616474))
pocket5 = body.newObject("PartDesign::Pocket", "Pocket004")
pocket5.Profile = sketch6
pocket5.Type = "ThroughAll"

doc.recompute()
